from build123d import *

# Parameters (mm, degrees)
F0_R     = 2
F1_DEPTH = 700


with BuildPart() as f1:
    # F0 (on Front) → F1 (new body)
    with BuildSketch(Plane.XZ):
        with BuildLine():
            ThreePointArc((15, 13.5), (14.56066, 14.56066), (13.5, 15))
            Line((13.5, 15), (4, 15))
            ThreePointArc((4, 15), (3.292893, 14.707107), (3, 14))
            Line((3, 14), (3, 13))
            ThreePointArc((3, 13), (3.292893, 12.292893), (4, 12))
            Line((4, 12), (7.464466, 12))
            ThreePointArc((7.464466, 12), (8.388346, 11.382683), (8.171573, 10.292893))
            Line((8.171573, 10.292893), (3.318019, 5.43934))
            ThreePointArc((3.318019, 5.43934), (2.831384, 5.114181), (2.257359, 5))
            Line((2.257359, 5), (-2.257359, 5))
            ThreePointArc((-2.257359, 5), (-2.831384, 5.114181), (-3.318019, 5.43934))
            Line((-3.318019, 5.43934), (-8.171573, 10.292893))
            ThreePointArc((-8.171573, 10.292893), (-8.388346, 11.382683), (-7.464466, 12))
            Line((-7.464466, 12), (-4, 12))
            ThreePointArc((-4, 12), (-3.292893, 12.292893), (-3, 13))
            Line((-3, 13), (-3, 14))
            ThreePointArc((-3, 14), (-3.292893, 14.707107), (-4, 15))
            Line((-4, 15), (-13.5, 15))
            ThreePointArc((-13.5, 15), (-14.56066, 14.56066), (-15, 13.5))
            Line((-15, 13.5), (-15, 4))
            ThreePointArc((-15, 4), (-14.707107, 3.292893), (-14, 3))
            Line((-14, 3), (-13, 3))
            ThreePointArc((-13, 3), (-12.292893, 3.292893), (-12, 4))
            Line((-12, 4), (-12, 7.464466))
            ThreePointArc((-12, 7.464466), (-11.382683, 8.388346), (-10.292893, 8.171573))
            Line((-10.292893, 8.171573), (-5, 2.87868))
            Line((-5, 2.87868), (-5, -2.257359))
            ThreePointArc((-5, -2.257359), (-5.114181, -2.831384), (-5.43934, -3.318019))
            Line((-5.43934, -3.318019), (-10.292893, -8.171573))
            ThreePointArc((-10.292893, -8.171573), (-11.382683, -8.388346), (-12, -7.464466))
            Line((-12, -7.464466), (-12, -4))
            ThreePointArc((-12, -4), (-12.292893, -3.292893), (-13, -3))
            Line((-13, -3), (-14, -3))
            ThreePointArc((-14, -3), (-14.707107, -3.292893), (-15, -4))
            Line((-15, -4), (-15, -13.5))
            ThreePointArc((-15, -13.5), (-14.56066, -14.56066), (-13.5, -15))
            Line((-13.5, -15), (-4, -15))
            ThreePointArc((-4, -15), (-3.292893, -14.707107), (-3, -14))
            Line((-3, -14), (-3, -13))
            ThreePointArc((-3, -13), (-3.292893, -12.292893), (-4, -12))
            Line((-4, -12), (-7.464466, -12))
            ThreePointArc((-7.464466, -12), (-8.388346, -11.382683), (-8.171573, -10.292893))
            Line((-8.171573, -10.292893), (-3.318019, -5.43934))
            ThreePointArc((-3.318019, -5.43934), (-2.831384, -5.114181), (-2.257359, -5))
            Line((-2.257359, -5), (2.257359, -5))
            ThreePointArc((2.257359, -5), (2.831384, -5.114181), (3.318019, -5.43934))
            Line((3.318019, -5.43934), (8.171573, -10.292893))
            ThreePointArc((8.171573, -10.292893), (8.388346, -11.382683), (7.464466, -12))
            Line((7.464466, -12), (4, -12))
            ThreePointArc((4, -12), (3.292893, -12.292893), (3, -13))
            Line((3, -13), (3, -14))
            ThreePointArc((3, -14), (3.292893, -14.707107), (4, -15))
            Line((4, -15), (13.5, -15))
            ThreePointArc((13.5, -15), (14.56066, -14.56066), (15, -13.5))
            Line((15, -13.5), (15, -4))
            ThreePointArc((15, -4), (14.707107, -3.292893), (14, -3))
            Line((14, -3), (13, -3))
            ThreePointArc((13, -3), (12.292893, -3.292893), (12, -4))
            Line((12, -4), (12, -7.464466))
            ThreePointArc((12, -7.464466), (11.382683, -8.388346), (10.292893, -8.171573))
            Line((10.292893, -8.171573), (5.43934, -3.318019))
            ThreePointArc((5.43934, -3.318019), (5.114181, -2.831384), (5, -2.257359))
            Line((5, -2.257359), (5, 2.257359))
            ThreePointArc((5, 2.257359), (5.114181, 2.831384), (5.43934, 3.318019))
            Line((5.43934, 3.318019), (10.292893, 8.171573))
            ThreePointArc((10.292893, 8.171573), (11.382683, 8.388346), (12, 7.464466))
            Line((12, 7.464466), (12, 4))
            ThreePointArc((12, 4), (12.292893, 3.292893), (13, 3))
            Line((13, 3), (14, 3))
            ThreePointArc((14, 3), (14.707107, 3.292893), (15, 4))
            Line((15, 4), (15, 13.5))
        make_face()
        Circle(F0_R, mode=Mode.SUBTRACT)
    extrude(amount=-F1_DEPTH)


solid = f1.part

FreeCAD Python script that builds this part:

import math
import FreeCAD as App
import Part
import Sketcher

doc = App.newDocument("Part")
body = doc.addObject("PartDesign::Body", "Body")

sketch1 = doc.addObject("Sketcher::SketchObject", "Sketch")
body.addObject(sketch1)
sketch1.AttachmentSupport = (doc.XZ_Plane, [""])
sketch1.MapMode = "FlatFace"
sketch1.addGeometry([
    Part.ArcOfCircle(Part.Circle(App.Vector(13.499999, 13.499999, 0), App.Vector(0, 0, 1), 1.500001), math.radians(0.000022), math.radians(89.999978)),
    Part.LineSegment(App.Vector(13.5, 15, 0), App.Vector(4, 15, 0)),
    Part.ArcOfCircle(Part.Circle(App.Vector(3.999999, 14.000001, 0), App.Vector(0, 0, 1), 0.999999), math.radians(89.999957), math.radians(180.000043)),
    Part.LineSegment(App.Vector(3, 14, 0), App.Vector(3, 13, 0)),
    Part.ArcOfCircle(Part.Circle(App.Vector(3.999999, 12.999999, 0), App.Vector(0, 0, 1), 0.999999), math.radians(179.999957), math.radians(270.000043)),
    Part.LineSegment(App.Vector(4, 12, 0), App.Vector(7.464466, 12, 0)),
    Part.ArcOfCircle(Part.Circle(App.Vector(7.464466, 11, 0), App.Vector(0, 0, 1), 1), math.radians(-45.000006), math.radians(90.000013)),
    Part.LineSegment(App.Vector(8.171573, 10.292893, 0), App.Vector(3.318019, 5.43934, 0)),
    Part.ArcOfCircle(Part.Circle(App.Vector(2.257358, 6.500002, 0), App.Vector(0, 0, 1), 1.500002), math.radians(-89.999948), math.radians(-45.000029)),
    Part.LineSegment(App.Vector(2.257359, 5, 0), App.Vector(-2.257359, 5, 0)),
    Part.ArcOfCircle(Part.Circle(App.Vector(-2.257358, 6.500002, 0), App.Vector(0, 0, 1), 1.500002), math.radians(-134.999971), math.radians(-90.000052)),
    Part.LineSegment(App.Vector(-3.318019, 5.43934, 0), App.Vector(-8.171573, 10.292893, 0)),
    Part.ArcOfCircle(Part.Circle(App.Vector(-7.464466, 11, 0), App.Vector(0, 0, 1), 1), math.radians(89.999987), math.radians(225.000006)),
    Part.LineSegment(App.Vector(-7.464466, 12, 0), App.Vector(-4, 12, 0)),
    Part.ArcOfCircle(Part.Circle(App.Vector(-3.999999, 12.999999, 0), App.Vector(0, 0, 1), 0.999999), math.radians(-90.000043), math.radians(0.000043)),
    Part.LineSegment(App.Vector(-3, 13, 0), App.Vector(-3, 14, 0)),
    Part.ArcOfCircle(Part.Circle(App.Vector(-3.999999, 14.000001, 0), App.Vector(0, 0, 1), 0.999999), math.radians(-0.000043), math.radians(90.000043)),
    Part.LineSegment(App.Vector(-4, 15, 0), App.Vector(-13.5, 15, 0)),
    Part.ArcOfCircle(Part.Circle(App.Vector(-13.499999, 13.499999, 0), App.Vector(0, 0, 1), 1.500001), math.radians(90.000022), math.radians(179.999978)),
    Part.LineSegment(App.Vector(-15, 13.5, 0), App.Vector(-15, 4, 0)),
    Part.ArcOfCircle(Part.Circle(App.Vector(-14.000001, 3.999999, 0), App.Vector(0, 0, 1), 0.999999), math.radians(179.999957), math.radians(270.000043)),
    Part.LineSegment(App.Vector(-14, 3, 0), App.Vector(-13, 3, 0)),
    Part.ArcOfCircle(Part.Circle(App.Vector(-12.999999, 3.999999, 0), App.Vector(0, 0, 1), 0.999999), math.radians(-90.000043), math.radians(0.000043)),
    Part.LineSegment(App.Vector(-12, 4, 0), App.Vector(-12, 7.464466, 0)),
    Part.ArcOfCircle(Part.Circle(App.Vector(-11, 7.464466, 0), App.Vector(0, 0, 1), 1), math.radians(44.999994), math.radians(180.000013)),
    Part.LineSegment(App.Vector(-10.292893, 8.171573, 0), App.Vector(-5, 2.87868, 0)),
    Part.LineSegment(App.Vector(-5, 2.87868, 0), App.Vector(-5, -2.257359, 0)),
    Part.ArcOfCircle(Part.Circle(App.Vector(-6.500002, -2.257358, 0), App.Vector(0, 0, 1), 1.500002), math.radians(-44.999971), math.radians(-0.000052)),
    Part.LineSegment(App.Vector(-5.43934, -3.318019, 0), App.Vector(-10.292893, -8.171573, 0)),
    Part.ArcOfCircle(Part.Circle(App.Vector(-11, -7.464466, 0), App.Vector(0, 0, 1), 1), math.radians(179.999987), math.radians(315.000006)),
    Part.LineSegment(App.Vector(-12, -7.464466, 0), App.Vector(-12, -4, 0)),
    Part.ArcOfCircle(Part.Circle(App.Vector(-12.999999, -3.999999, 0), App.Vector(0, 0, 1), 0.999999), math.radians(-0.000043), math.radians(90.000043)),
    Part.LineSegment(App.Vector(-13, -3, 0), App.Vector(-14, -3, 0)),
    Part.ArcOfCircle(Part.Circle(App.Vector(-14.000001, -3.999999, 0), App.Vector(0, 0, 1), 0.999999), math.radians(89.999957), math.radians(180.000043)),
    Part.LineSegment(App.Vector(-15, -4, 0), App.Vector(-15, -13.5, 0)),
    Part.ArcOfCircle(Part.Circle(App.Vector(-13.499999, -13.499999, 0), App.Vector(0, 0, 1), 1.500001), math.radians(-179.999978), math.radians(-90.000022)),
    Part.LineSegment(App.Vector(-13.5, -15, 0), App.Vector(-4, -15, 0)),
    Part.ArcOfCircle(Part.Circle(App.Vector(-3.999999, -14.000001, 0), App.Vector(0, 0, 1), 0.999999), math.radians(-90.000043), math.radians(0.000043)),
    Part.LineSegment(App.Vector(-3, -14, 0), App.Vector(-3, -13, 0)),
    Part.ArcOfCircle(Part.Circle(App.Vector(-3.999999, -12.999999, 0), App.Vector(0, 0, 1), 0.999999), math.radians(-0.000043), math.radians(90.000043)),
    Part.LineSegment(App.Vector(-4, -12, 0), App.Vector(-7.464466, -12, 0)),
    Part.ArcOfCircle(Part.Circle(App.Vector(-7.464466, -11, 0), App.Vector(0, 0, 1), 1), math.radians(134.999994), math.radians(270.000013)),
    Part.LineSegment(App.Vector(-8.171573, -10.292893, 0), App.Vector(-3.318019, -5.43934, 0)),
    Part.ArcOfCircle(Part.Circle(App.Vector(-2.257358, -6.500002, 0), App.Vector(0, 0, 1), 1.500002), math.radians(90.000052), math.radians(134.999971)),
    Part.LineSegment(App.Vector(-2.257359, -5, 0), App.Vector(2.257359, -5, 0)),
    Part.ArcOfCircle(Part.Circle(App.Vector(2.257358, -6.500002, 0), App.Vector(0, 0, 1), 1.500002), math.radians(45.000029), math.radians(89.999948)),
    Part.LineSegment(App.Vector(3.318019, -5.43934, 0), App.Vector(8.171573, -10.292893, 0)),
    Part.ArcOfCircle(Part.Circle(App.Vector(7.464466, -11, 0), App.Vector(0, 0, 1), 1), math.radians(-90.000013), math.radians(45.000006)),
    Part.LineSegment(App.Vector(7.464466, -12, 0), App.Vector(4, -12, 0)),
    Part.ArcOfCircle(Part.Circle(App.Vector(3.999999, -12.999999, 0), App.Vector(0, 0, 1), 0.999999), math.radians(89.999957), math.radians(180.000043)),
    Part.LineSegment(App.Vector(3, -13, 0), App.Vector(3, -14, 0)),
    Part.ArcOfCircle(Part.Circle(App.Vector(3.999999, -14.000001, 0), App.Vector(0, 0, 1), 0.999999), math.radians(179.999957), math.radians(270.000043)),
    Part.LineSegment(App.Vector(4, -15, 0), App.Vector(13.5, -15, 0)),
    Part.ArcOfCircle(Part.Circle(App.Vector(13.499999, -13.499999, 0), App.Vector(0, 0, 1), 1.500001), math.radians(-89.999978), math.radians(-0.000022)),
    Part.LineSegment(App.Vector(15, -13.5, 0), App.Vector(15, -4, 0)),
    Part.ArcOfCircle(Part.Circle(App.Vector(14.000001, -3.999999, 0), App.Vector(0, 0, 1), 0.999999), math.radians(-0.000043), math.radians(90.000043)),
    Part.LineSegment(App.Vector(14, -3, 0), App.Vector(13, -3, 0)),
    Part.ArcOfCircle(Part.Circle(App.Vector(12.999999, -3.999999, 0), App.Vector(0, 0, 1), 0.999999), math.radians(89.999957), math.radians(180.000043)),
    Part.LineSegment(App.Vector(12, -4, 0), App.Vector(12, -7.464466, 0)),
    Part.ArcOfCircle(Part.Circle(App.Vector(11, -7.464466, 0), App.Vector(0, 0, 1), 1), math.radians(-135.000006), math.radians(0.000013)),
    Part.LineSegment(App.Vector(10.292893, -8.171573, 0), App.Vector(5.43934, -3.318019, 0)),
    Part.ArcOfCircle(Part.Circle(App.Vector(6.500002, -2.257358, 0), App.Vector(0, 0, 1), 1.500002), math.radians(-179.999948), math.radians(-135.000029)),
    Part.LineSegment(App.Vector(5, -2.257359, 0), App.Vector(5, 2.257359, 0)),
    Part.ArcOfCircle(Part.Circle(App.Vector(6.500002, 2.257358, 0), App.Vector(0, 0, 1), 1.500002), math.radians(135.000029), math.radians(179.999948)),
    Part.LineSegment(App.Vector(5.43934, 3.318019, 0), App.Vector(10.292893, 8.171573, 0)),
    Part.ArcOfCircle(Part.Circle(App.Vector(11, 7.464466, 0), App.Vector(0, 0, 1), 1), math.radians(-0.000013), math.radians(135.000006)),
    Part.LineSegment(App.Vector(12, 7.464466, 0), App.Vector(12, 4, 0)),
    Part.ArcOfCircle(Part.Circle(App.Vector(12.999999, 3.999999, 0), App.Vector(0, 0, 1), 0.999999), math.radians(179.999957), math.radians(270.000043)),
    Part.LineSegment(App.Vector(13, 3, 0), App.Vector(14, 3, 0)),
    Part.ArcOfCircle(Part.Circle(App.Vector(14.000001, 3.999999, 0), App.Vector(0, 0, 1), 0.999999), math.radians(-90.000043), math.radians(0.000043)),
    Part.LineSegment(App.Vector(15, 4, 0), App.Vector(15, 13.5, 0)),
    Part.Circle(App.Vector(0, 0, 0), App.Vector(0, 0, 1), 2),
], False)
sketch1.addConstraint([
    Sketcher.Constraint("Tangent", 0, 2, 1, 1),
    Sketcher.Constraint("Tangent", 1, 2, 2, 1),
    Sketcher.Constraint("Tangent", 2, 2, 3, 1),
    Sketcher.Constraint("Tangent", 3, 2, 4, 1),
    Sketcher.Constraint("Tangent", 4, 2, 5, 1),
    Sketcher.Constraint("Tangent", 5, 2, 6, 2),
    Sketcher.Constraint("Tangent", 6, 1, 7, 1),
    Sketcher.Constraint("Tangent", 7, 2, 8, 2),
    Sketcher.Constraint("Tangent", 8, 1, 9, 1),
    Sketcher.Constraint("Tangent", 9, 2, 10, 2),
    Sketcher.Constraint("Tangent", 10, 1, 11, 1),
    Sketcher.Constraint("Tangent", 11, 2, 12, 2),
    Sketcher.Constraint("Tangent", 12, 1, 13, 1),
    Sketcher.Constraint("Tangent", 13, 2, 14, 1),
    Sketcher.Constraint("Tangent", 14, 2, 15, 1),
    Sketcher.Constraint("Tangent", 15, 2, 16, 1),
    Sketcher.Constraint("Tangent", 16, 2, 17, 1),
    Sketcher.Constraint("Tangent", 17, 2, 18, 1),
    Sketcher.Constraint("Tangent", 18, 2, 19, 1),
    Sketcher.Constraint("Tangent", 19, 2, 20, 1),
    Sketcher.Constraint("Tangent", 20, 2, 21, 1),
    Sketcher.Constraint("Tangent", 21, 2, 22, 1),
    Sketcher.Constraint("Tangent", 22, 2, 23, 1),
    Sketcher.Constraint("Tangent", 23, 2, 24, 2),
    Sketcher.Constraint("Tangent", 24, 1, 25, 1),
    Sketcher.Constraint("Coincident", 25, 2, 26, 1),
    Sketcher.Constraint("Tangent", 26, 2, 27, 2),
    Sketcher.Constraint("Tangent", 27, 1, 28, 1),
    Sketcher.Constraint("Tangent", 28, 2, 29, 2),
    Sketcher.Constraint("Tangent", 29, 1, 30, 1),
    Sketcher.Constraint("Tangent", 30, 2, 31, 1),
    Sketcher.Constraint("Tangent", 31, 2, 32, 1),
    Sketcher.Constraint("Tangent", 32, 2, 33, 1),
    Sketcher.Constraint("Tangent", 33, 2, 34, 1),
    Sketcher.Constraint("Tangent", 34, 2, 35, 1),
    Sketcher.Constraint("Tangent", 35, 2, 36, 1),
    Sketcher.Constraint("Tangent", 36, 2, 37, 1),
    Sketcher.Constraint("Tangent", 37, 2, 38, 1),
    Sketcher.Constraint("Tangent", 38, 2, 39, 1),
    Sketcher.Constraint("Tangent", 39, 2, 40, 1),
    Sketcher.Constraint("Tangent", 40, 2, 41, 2),
    Sketcher.Constraint("Tangent", 41, 1, 42, 1),
    Sketcher.Constraint("Tangent", 42, 2, 43, 2),
    Sketcher.Constraint("Tangent", 43, 1, 44, 1),
    Sketcher.Constraint("Tangent", 44, 2, 45, 2),
    Sketcher.Constraint("Tangent", 45, 1, 46, 1),
    Sketcher.Constraint("Tangent", 46, 2, 47, 2),
    Sketcher.Constraint("Tangent", 47, 1, 48, 1),
    Sketcher.Constraint("Tangent", 48, 2, 49, 1),
    Sketcher.Constraint("Tangent", 49, 2, 50, 1),
    Sketcher.Constraint("Tangent", 50, 2, 51, 1),
    Sketcher.Constraint("Tangent", 51, 2, 52, 1),
    Sketcher.Constraint("Tangent", 52, 2, 53, 1),
    Sketcher.Constraint("Tangent", 53, 2, 54, 1),
    Sketcher.Constraint("Tangent", 54, 2, 55, 1),
    Sketcher.Constraint("Tangent", 55, 2, 56, 1),
    Sketcher.Constraint("Tangent", 56, 2, 57, 1),
    Sketcher.Constraint("Tangent", 57, 2, 58, 1),
    Sketcher.Constraint("Tangent", 58, 2, 59, 2),
    Sketcher.Constraint("Tangent", 59, 1, 60, 1),
    Sketcher.Constraint("Tangent", 60, 2, 61, 2),
    Sketcher.Constraint("Tangent", 61, 1, 62, 1),
    Sketcher.Constraint("Tangent", 62, 2, 63, 2),
    Sketcher.Constraint("Tangent", 63, 1, 64, 1),
    Sketcher.Constraint("Tangent", 64, 2, 65, 2),
    Sketcher.Constraint("Tangent", 65, 1, 66, 1),
    Sketcher.Constraint("Tangent", 66, 2, 67, 1),
    Sketcher.Constraint("Tangent", 67, 2, 68, 1),
    Sketcher.Constraint("Tangent", 68, 2, 69, 1),
    Sketcher.Constraint("Tangent", 69, 2, 70, 1),
    Sketcher.Constraint("Tangent", 70, 2, 0, 1),
    Sketcher.Constraint("Horizontal", 1),
    Sketcher.Constraint("Vertical", 3),
    Sketcher.Constraint("Horizontal", 5),
    Sketcher.Constraint("Horizontal", 9),
    Sketcher.Constraint("Horizontal", 13),
    Sketcher.Constraint("Vertical", 15),
    Sketcher.Constraint("Horizontal", 17),
    Sketcher.Constraint("Vertical", 19),
    Sketcher.Constraint("Horizontal", 21),
    Sketcher.Constraint("Vertical", 23),
    Sketcher.Constraint("Vertical", 26),
    Sketcher.Constraint("Vertical", 30),
    Sketcher.Constraint("Horizontal", 32),
    Sketcher.Constraint("Vertical", 34),
    Sketcher.Constraint("Horizontal", 36),
    Sketcher.Constraint("Vertical", 38),
    Sketcher.Constraint("Horizontal", 40),
    Sketcher.Constraint("Horizontal", 44),
    Sketcher.Constraint("Horizontal", 48),
    Sketcher.Constraint("Vertical", 50),
    Sketcher.Constraint("Horizontal", 52),
    Sketcher.Constraint("Vertical", 54),
    Sketcher.Constraint("Horizontal", 56),
    Sketcher.Constraint("Vertical", 58),
    Sketcher.Constraint("Vertical", 62),
    Sketcher.Constraint("Vertical", 66),
    Sketcher.Constraint("Horizontal", 68),
    Sketcher.Constraint("Vertical", 70),
    Sketcher.Constraint("Coincident", 71, 3, -1, 1),
    Sketcher.Constraint("Equal", 2, 4),
    Sketcher.Constraint("Equal", 4, 6),
    Sketcher.Constraint("Equal", 0, 8),
    Sketcher.Constraint("Equal", 8, 10),
    Sketcher.Constraint("Equal", 6, 12),
    Sketcher.Constraint("Equal", 12, 14),
    Sketcher.Constraint("Equal", 14, 16),
    Sketcher.Constraint("Equal", 10, 18),
    Sketcher.Constraint("Equal", 16, 20),
    Sketcher.Constraint("Equal", 20, 22),
    Sketcher.Constraint("Equal", 22, 24),
    Sketcher.Constraint("Equal", 18, 27),
    Sketcher.Constraint("Equal", 24, 29),
    Sketcher.Constraint("Equal", 29, 31),
    Sketcher.Constraint("Equal", 31, 33),
    Sketcher.Constraint("Equal", 27, 35),
    Sketcher.Constraint("Equal", 33, 37),
    Sketcher.Constraint("Equal", 37, 39),
    Sketcher.Constraint("Equal", 39, 41),
    Sketcher.Constraint("Equal", 35, 43),
    Sketcher.Constraint("Equal", 43, 45),
    Sketcher.Constraint("Equal", 41, 47),
    Sketcher.Constraint("Equal", 47, 49),
    Sketcher.Constraint("Equal", 49, 51),
    Sketcher.Constraint("Equal", 45, 53),
    Sketcher.Constraint("Equal", 51, 55),
    Sketcher.Constraint("Equal", 55, 57),
    Sketcher.Constraint("Equal", 57, 59),
    Sketcher.Constraint("Equal", 53, 61),
    Sketcher.Constraint("Equal", 61, 63),
    Sketcher.Constraint("Equal", 59, 65),
    Sketcher.Constraint("Equal", 65, 67),
    Sketcher.Constraint("Equal", 67, 69),
    Sketcher.Constraint("Symmetric", 0, 3, 35, 3, -1, 1),
    Sketcher.Constraint("Symmetric", 4, 3, 39, 3, -1, 1),
    Sketcher.Constraint("Symmetric", 8, 3, 43, 3, -1, 1),
    Sketcher.Constraint("Symmetric", 12, 3, 47, 3, -1, 1),
    Sketcher.Constraint("Symmetric", 16, 3, 51, 3, -1, 1),
    Sketcher.Constraint("Symmetric", 20, 3, 55, 3, -1, 1),
    Sketcher.Constraint("Symmetric", 24, 3, 59, 3, -1, 1),
    Sketcher.Constraint("Symmetric", 27, 3, 63, 3, -1, 1),
    Sketcher.Constraint("Symmetric", 29, 3, 65, 3, -1, 1),
    Sketcher.Constraint("Symmetric", 6, 3, 12, 3, -2),
    Sketcher.Constraint("Symmetric", 2, 3, 16, 3, -2),
    Sketcher.Constraint("Symmetric", 33, 3, 55, 3, -2),
    Sketcher.Constraint("Symmetric", 29, 3, 59, 3, -2),
    Sketcher.Constraint("Symmetric", 42, 2, 45, 1, -2),
    Sketcher.Constraint("Perpendicular", 7, 11),
    Sketcher.Constraint("Parallel", 11, 25),
    Sketcher.Constraint("Perpendicular", 25, 28),
    Sketcher.Constraint("Perpendicular", 42, 46),
    Sketcher.Constraint("Parallel", 46, 60),
    Sketcher.Constraint("Horizontal", 22, 3, 67, 3),
    Sketcher.Constraint("Equal", 68, 3),
    Sketcher.Constraint("Equal", 52, 19),
    Sketcher.Constraint("Equal", 48, 23),
    Sketcher.Constraint("Equal", 44, 62),
    Sketcher.Constraint("Equal", 11, 28),
    Sketcher.Constraint("Diameter", 71, 4.0),
    Sketcher.Constraint("Radius", 2, 0.999999),
    Sketcher.Constraint("Radius", 0, 1.500001),
    Sketcher.Constraint("DistanceX", 21, 1, 21, 2, 1.0),
    Sketcher.Constraint("DistanceX", 1, 2, 1, 1, 9.5),
    Sketcher.Constraint("DistanceX", -1, 1, 2, 3, 3.999999),
    Sketcher.Constraint("DistanceY", -1, 1, 8, 1, 5.0),
    Sketcher.Constraint("DistanceX", 9, 2, 9, 1, 4.514718),
])
pad1 = doc.addObject("PartDesign::Pad", "Pad")
body.addObject(pad1)
pad1.Profile = sketch1
pad1.Length = 700
pad1.Reversed = True

doc.recompute()
